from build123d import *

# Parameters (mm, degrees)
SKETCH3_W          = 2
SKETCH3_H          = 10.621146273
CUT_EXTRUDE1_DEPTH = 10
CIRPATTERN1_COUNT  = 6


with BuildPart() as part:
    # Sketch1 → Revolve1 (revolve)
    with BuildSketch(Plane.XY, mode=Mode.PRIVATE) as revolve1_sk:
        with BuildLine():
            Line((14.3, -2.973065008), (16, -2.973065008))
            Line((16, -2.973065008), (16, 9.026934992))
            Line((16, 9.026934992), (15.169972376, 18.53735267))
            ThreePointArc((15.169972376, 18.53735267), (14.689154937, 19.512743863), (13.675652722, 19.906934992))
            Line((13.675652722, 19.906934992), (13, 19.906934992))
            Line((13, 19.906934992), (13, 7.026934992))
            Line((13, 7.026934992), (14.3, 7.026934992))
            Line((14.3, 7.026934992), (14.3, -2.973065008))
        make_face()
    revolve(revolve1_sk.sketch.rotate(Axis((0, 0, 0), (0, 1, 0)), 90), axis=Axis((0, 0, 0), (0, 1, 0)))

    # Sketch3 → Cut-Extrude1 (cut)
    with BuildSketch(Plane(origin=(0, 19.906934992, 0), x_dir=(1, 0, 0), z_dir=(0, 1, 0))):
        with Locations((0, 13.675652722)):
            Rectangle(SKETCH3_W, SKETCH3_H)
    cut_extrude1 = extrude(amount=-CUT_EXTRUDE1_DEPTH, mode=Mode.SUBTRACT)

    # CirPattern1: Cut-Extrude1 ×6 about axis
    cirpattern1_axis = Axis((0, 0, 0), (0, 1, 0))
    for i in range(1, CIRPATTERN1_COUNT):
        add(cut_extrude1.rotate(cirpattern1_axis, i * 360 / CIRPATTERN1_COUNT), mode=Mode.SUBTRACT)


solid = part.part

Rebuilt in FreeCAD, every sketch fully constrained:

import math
import FreeCAD as App
import Part
import Sketcher

V = App.Vector
Q = App.Units.Quantity


def add_polygon(sketch, points):
    """Adds a closed chain of lines whose ends are joined by coincident constraints."""
    first, n = sketch.GeometryCount, len(points)
    for a, b in zip(points, points[1:] + points[:1]):
        sketch.addGeometry(Part.LineSegment(App.Vector(*a, 0), App.Vector(*b, 0)), False)
    for i in range(n):
        sketch.addConstraint(Sketcher.Constraint("Coincident", first + i, 2, first + (i + 1) % n, 1))

doc = App.newDocument("Part")
body = doc.addObject("PartDesign::Body", "Body")

sketch1 = doc.addObject("Sketcher::SketchObject", "Sketch")
body.addObject(sketch1)
sketch1.AttachmentSupport = (doc.XY_Plane, [""])
sketch1.MapMode = "FlatFace"
sketch1.addGeometry([
    Part.LineSegment(V(14.3, -3, 0), V(16, -3, 0)),
    Part.LineSegment(V(16, -3, 0), V(16, 9, 0)),
    Part.LineSegment(V(16, 9, 0), V(15.2, 18.5, 0)),
    Part.ArcOfCircle(Part.Circle(V(13.7, 18.4, 0), V(0, 0, 1), 1.5), math.radians(5), math.radians(90)),
    Part.LineSegment(V(13.7, 19.9, 0), V(13, 19.9, 0)),
    Part.LineSegment(V(13, 19.9, 0), V(13, 7, 0)),
    Part.LineSegment(V(13, 7, 0), V(14.3, 7, 0)),
    Part.LineSegment(V(14.3, 7, 0), V(14.3, -3, 0)),
], False)
sketch1.addConstraint([
    Sketcher.Constraint("Coincident", 0, 2, 1, 1),
    Sketcher.Constraint("Coincident", 1, 2, 2, 1),
    Sketcher.Constraint("Tangent", 2, 2, 3, 1),
    Sketcher.Constraint("Tangent", 3, 2, 4, 1),
    Sketcher.Constraint("Coincident", 4, 2, 5, 1),
    Sketcher.Constraint("Coincident", 5, 2, 6, 1),
    Sketcher.Constraint("Coincident", 6, 2, 7, 1),
    Sketcher.Constraint("Coincident", 7, 2, 0, 1),
    Sketcher.Constraint("Horizontal", 0),
    Sketcher.Constraint("Vertical", 1),
    Sketcher.Constraint("Horizontal", 4),
    Sketcher.Constraint("Vertical", 5),
    Sketcher.Constraint("Horizontal", 6),
    Sketcher.Constraint("Vertical", 7),
    Sketcher.Constraint("Radius", 3, Q("1.5 mm")),
    Sketcher.Constraint("DistanceY", 1, 1, 1, 2, Q("12 mm")),
    Sketcher.Constraint("DistanceY", 7, 2, 7, 1, Q("10 mm")),
    Sketcher.Constraint("DistanceX", 0, 1, 0, 2, Q("1.7 mm")),
    Sketcher.Constraint("DistanceX", 6, 1, 6, 2, Q("1.3 mm")),
    Sketcher.Constraint("DistanceX", -1, 1, 0, 2, Q("16 mm")),
    Sketcher.Constraint("DistanceY", 5, 2, 5, 1, Q("12.88 mm")),
    Sketcher.Constraint("Distance", 2, Q("9.54657 mm")),
    Sketcher.Constraint("DistanceY", -1, 1, 3, 3, Q("18.406935 mm")),
])
revolution = doc.addObject("PartDesign::Revolution", "Revolution")
body.addObject(revolution)
revolution.Profile = sketch1
revolution.ReferenceAxis = (sketch1, ["V_Axis"])
revolution.Angle = 360

sketch2 = doc.addObject("Sketcher::SketchObject", "Sketch001")
body.addObject(sketch2)
sketch2.AttachmentSupport = (doc.XZ_Plane, [""])
sketch2.MapMode = "FlatFace"
sketch2.AttachmentOffset = App.Placement(V(0, 0, -19.906935), App.Rotation())
add_polygon(sketch2, [(-1, -19), (-1, -8.4), (1, -8.4), (1, -19)])
sketch2.addConstraint([
    Sketcher.Constraint("Vertical", 0),
    Sketcher.Constraint("Horizontal", 1),
    Sketcher.Constraint("Vertical", 2),
    Sketcher.Constraint("Horizontal", 3),
    Sketcher.Constraint("DistanceX", 1, 1, 1, 2, Q("2 mm")),
    Sketcher.Constraint("DistanceX", 0, 2, -1, 1, Q("1 mm")),
    Sketcher.Constraint("DistanceY", 0, 1, 0, 2, Q("10.621146 mm")),
    Sketcher.Constraint("DistanceY", 0, 2, -1, 1, Q("8.36508 mm")),
])
pocket1 = doc.addObject("PartDesign::Pocket", "Pocket")
body.addObject(pocket1)
pocket1.Profile = sketch2
pocket1.Length = 10
pocket1.Reversed = True
doc.recompute()

polarpattern = doc.addObject("PartDesign::PolarPattern", "PolarPattern")
body.addObject(polarpattern)
polarpattern.Originals = [pocket1]
polarpattern.Axis = (doc.Y_Axis, [""])
polarpattern.Angle = 360
polarpattern.Occurrences = 6
body.Tip = polarpattern

doc.recompute()
